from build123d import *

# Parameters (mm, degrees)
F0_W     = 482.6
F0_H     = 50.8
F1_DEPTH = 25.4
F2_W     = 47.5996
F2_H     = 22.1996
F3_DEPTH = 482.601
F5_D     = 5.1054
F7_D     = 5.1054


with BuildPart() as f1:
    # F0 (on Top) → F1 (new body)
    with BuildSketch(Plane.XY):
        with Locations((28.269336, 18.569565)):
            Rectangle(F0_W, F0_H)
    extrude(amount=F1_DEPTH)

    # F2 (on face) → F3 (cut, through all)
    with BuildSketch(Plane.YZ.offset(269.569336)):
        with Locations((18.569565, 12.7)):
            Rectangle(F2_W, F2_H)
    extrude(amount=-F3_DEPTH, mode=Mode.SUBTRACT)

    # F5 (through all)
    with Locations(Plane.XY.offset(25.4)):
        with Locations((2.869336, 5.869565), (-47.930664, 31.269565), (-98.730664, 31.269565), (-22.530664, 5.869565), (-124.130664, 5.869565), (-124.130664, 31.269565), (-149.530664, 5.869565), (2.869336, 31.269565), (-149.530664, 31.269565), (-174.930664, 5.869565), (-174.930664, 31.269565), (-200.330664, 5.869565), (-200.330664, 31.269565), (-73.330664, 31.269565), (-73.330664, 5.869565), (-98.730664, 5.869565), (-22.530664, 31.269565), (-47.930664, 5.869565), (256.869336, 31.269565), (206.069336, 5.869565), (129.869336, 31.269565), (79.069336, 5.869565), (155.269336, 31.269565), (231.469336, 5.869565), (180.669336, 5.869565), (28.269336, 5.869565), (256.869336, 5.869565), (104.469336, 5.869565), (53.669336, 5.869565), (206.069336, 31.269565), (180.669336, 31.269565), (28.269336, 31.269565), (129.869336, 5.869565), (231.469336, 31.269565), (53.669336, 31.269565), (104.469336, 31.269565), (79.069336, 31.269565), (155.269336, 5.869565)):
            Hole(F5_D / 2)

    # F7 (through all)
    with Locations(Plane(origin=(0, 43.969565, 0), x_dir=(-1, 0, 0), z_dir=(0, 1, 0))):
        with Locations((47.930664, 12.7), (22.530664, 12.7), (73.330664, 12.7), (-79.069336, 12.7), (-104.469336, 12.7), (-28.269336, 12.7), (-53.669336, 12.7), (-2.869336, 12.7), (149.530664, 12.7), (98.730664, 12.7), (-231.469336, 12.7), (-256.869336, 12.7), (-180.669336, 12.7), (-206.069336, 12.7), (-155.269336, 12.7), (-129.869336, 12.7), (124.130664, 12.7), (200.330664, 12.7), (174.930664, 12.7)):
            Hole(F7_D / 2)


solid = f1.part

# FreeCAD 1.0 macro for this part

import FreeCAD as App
import Part
import Sketcher

V = App.Vector
Q = App.Units.Quantity


def add_polygon(sketch, points):
    """Adds a closed chain of lines whose ends are joined by coincident constraints."""
    first, n = sketch.GeometryCount, len(points)
    for a, b in zip(points, points[1:] + points[:1]):
        sketch.addGeometry(Part.LineSegment(App.Vector(*a, 0), App.Vector(*b, 0)), False)
    for i in range(n):
        sketch.addConstraint(Sketcher.Constraint("Coincident", first + i, 2, first + (i + 1) % n, 1))

doc = App.newDocument("Part")
body = doc.addObject("PartDesign::Body", "Body")

# Sketch on XY plane
sketch1 = doc.addObject("Sketcher::SketchObject", "Sketch")
body.addObject(sketch1)
sketch1.AttachmentSupport = (doc.XY_Plane, [""])
sketch1.MapMode = "FlatFace"
add_polygon(sketch1, [(-213.030664, 43.969565), (-213.030664, -6.830435), (269.569336, -6.830435), (269.569336, 43.969565)])  # lines 0-3
sketch1.addConstraint(Sketcher.Constraint("Vertical", 0))
sketch1.addConstraint(Sketcher.Constraint("Horizontal", 1))
sketch1.addConstraint(Sketcher.Constraint("Vertical", 2))
sketch1.addConstraint(Sketcher.Constraint("Horizontal", 3))
sketch1.addConstraint(Sketcher.Constraint("DistanceX", 1, 1, 1, 2, Q("19 in")))
sketch1.addConstraint(Sketcher.Constraint("DistanceY", 0, 2, 0, 1, Q("2 in")))
sketch1.addConstraint(Sketcher.Constraint("DistanceX", 0, 2, -1, 1, 213.030664))
sketch1.addConstraint(Sketcher.Constraint("DistanceY", 0, 2, -1, 1, 6.830435))
pad1 = doc.addObject("PartDesign::Pad", "Pad")
body.addObject(pad1)
pad1.Profile = sketch1
pad1.Length = Q("1 in")

# Sketch on YZ plane
sketch2 = doc.addObject("Sketcher::SketchObject", "Sketch001")
body.addObject(sketch2)
sketch2.AttachmentSupport = (doc.YZ_Plane, [""])
sketch2.MapMode = "FlatFace"
sketch2.AttachmentOffset = App.Placement(V(0, 0, 269.569336), App.Rotation())
add_polygon(sketch2, [(-5.230235, 23.7998), (-5.230235, 1.6002), (42.369365, 1.6002), (42.369365, 23.7998)])  # lines 0-3
sketch2.addConstraint(Sketcher.Constraint("Vertical", 0))
sketch2.addConstraint(Sketcher.Constraint("Horizontal", 1))
sketch2.addConstraint(Sketcher.Constraint("Vertical", 2))
sketch2.addConstraint(Sketcher.Constraint("Horizontal", 3))
sketch2.addConstraint(Sketcher.Constraint("DistanceX", 1, 1, 1, 2, Q("1.874 in")))
sketch2.addConstraint(Sketcher.Constraint("DistanceY", 0, 2, 0, 1, Q("0.874 in")))
sketch2.addConstraint(Sketcher.Constraint("DistanceY", -1, 1, 0, 2, Q("0.063 in")))
sketch2.addConstraint(Sketcher.Constraint("DistanceX", 0, 2, -1, 1, 5.230235))
pocket1 = doc.addObject("PartDesign::Pocket", "Pocket")
body.addObject(pocket1)
pocket1.Profile = sketch2
pocket1.Type = "ThroughAll"

# Sketch on XY plane
sketch3 = doc.addObject("Sketcher::SketchObject", "Sketch002")
body.addObject(sketch3)
sketch3.AttachmentSupport = (doc.XY_Plane, [""])
sketch3.MapMode = "FlatFace"
sketch3.AttachmentOffset = App.Placement(V(0, 0, 1 * 25.4), App.Rotation())
sketch3.addGeometry(Part.Circle(V(2.869336, 5.869565, 0), V(0, 0, 1), 2.5527), False)
sketch3.addGeometry(Part.Circle(V(-47.930664, 31.269565, 0), V(0, 0, 1), 2.5527), False)
sketch3.addGeometry(Part.Circle(V(-98.730664, 31.269565, 0), V(0, 0, 1), 2.5527), False)
sketch3.addGeometry(Part.Circle(V(-22.530664, 5.869565, 0), V(0, 0, 1), 2.5527), False)
sketch3.addGeometry(Part.Circle(V(-124.130664, 5.869565, 0), V(0, 0, 1), 2.5527), False)
sketch3.addGeometry(Part.Circle(V(-124.130664, 31.269565, 0), V(0, 0, 1), 2.5527), False)
sketch3.addGeometry(Part.Circle(V(-149.530664, 5.869565, 0), V(0, 0, 1), 2.5527), False)
sketch3.addGeometry(Part.Circle(V(2.869336, 31.269565, 0), V(0, 0, 1), 2.5527), False)
sketch3.addGeometry(Part.Circle(V(-149.530664, 31.269565, 0), V(0, 0, 1), 2.5527), False)
sketch3.addGeometry(Part.Circle(V(-174.930664, 5.869565, 0), V(0, 0, 1), 2.5527), False)
sketch3.addGeometry(Part.Circle(V(-174.930664, 31.269565, 0), V(0, 0, 1), 2.5527), False)
sketch3.addGeometry(Part.Circle(V(-200.330664, 5.869565, 0), V(0, 0, 1), 2.5527), False)
sketch3.addGeometry(Part.Circle(V(-200.330664, 31.269565, 0), V(0, 0, 1), 2.5527), False)
sketch3.addGeometry(Part.Circle(V(-73.330664, 31.269565, 0), V(0, 0, 1), 2.5527), False)
sketch3.addGeometry(Part.Circle(V(-73.330664, 5.869565, 0), V(0, 0, 1), 2.5527), False)
sketch3.addGeometry(Part.Circle(V(-98.730664, 5.869565, 0), V(0, 0, 1), 2.5527), False)
sketch3.addGeometry(Part.Circle(V(-22.530664, 31.269565, 0), V(0, 0, 1), 2.5527), False)
sketch3.addGeometry(Part.Circle(V(-47.930664, 5.869565, 0), V(0, 0, 1), 2.5527), False)
sketch3.addGeometry(Part.Circle(V(256.869336, 31.269565, 0), V(0, 0, 1), 2.5527), False)
sketch3.addGeometry(Part.Circle(V(206.069336, 5.869565, 0), V(0, 0, 1), 2.5527), False)
sketch3.addGeometry(Part.Circle(V(129.869336, 31.269565, 0), V(0, 0, 1), 2.5527), False)
sketch3.addGeometry(Part.Circle(V(79.069336, 5.869565, 0), V(0, 0, 1), 2.5527), False)
sketch3.addGeometry(Part.Circle(V(155.269336, 31.269565, 0), V(0, 0, 1), 2.5527), False)
sketch3.addGeometry(Part.Circle(V(231.469336, 5.869565, 0), V(0, 0, 1), 2.5527), False)
sketch3.addGeometry(Part.Circle(V(180.669336, 5.869565, 0), V(0, 0, 1), 2.5527), False)
sketch3.addGeometry(Part.Circle(V(28.269336, 5.869565, 0), V(0, 0, 1), 2.5527), False)
sketch3.addGeometry(Part.Circle(V(256.869336, 5.869565, 0), V(0, 0, 1), 2.5527), False)
sketch3.addGeometry(Part.Circle(V(104.469336, 5.869565, 0), V(0, 0, 1), 2.5527), False)
sketch3.addGeometry(Part.Circle(V(53.669336, 5.869565, 0), V(0, 0, 1), 2.5527), False)
sketch3.addGeometry(Part.Circle(V(206.069336, 31.269565, 0), V(0, 0, 1), 2.5527), False)
sketch3.addGeometry(Part.Circle(V(180.669336, 31.269565, 0), V(0, 0, 1), 2.5527), False)
sketch3.addGeometry(Part.Circle(V(28.269336, 31.269565, 0), V(0, 0, 1), 2.5527), False)
sketch3.addGeometry(Part.Circle(V(129.869336, 5.869565, 0), V(0, 0, 1), 2.5527), False)
sketch3.addGeometry(Part.Circle(V(231.469336, 31.269565, 0), V(0, 0, 1), 2.5527), False)
sketch3.addGeometry(Part.Circle(V(53.669336, 31.269565, 0), V(0, 0, 1), 2.5527), False)
sketch3.addGeometry(Part.Circle(V(104.469336, 31.269565, 0), V(0, 0, 1), 2.5527), False)
sketch3.addGeometry(Part.Circle(V(79.069336, 31.269565, 0), V(0, 0, 1), 2.5527), False)
sketch3.addGeometry(Part.Circle(V(155.269336, 5.869565, 0), V(0, 0, 1), 2.5527), False)
sketch3.addConstraint(Sketcher.Constraint("Equal", 0, 1))
sketch3.addConstraint(Sketcher.Constraint("Equal", 1, 2))
sketch3.addConstraint(Sketcher.Constraint("Equal", 2, 3))
sketch3.addConstraint(Sketcher.Constraint("Equal", 3, 4))
sketch3.addConstraint(Sketcher.Constraint("Equal", 4, 5))
sketch3.addConstraint(Sketcher.Constraint("Equal", 5, 6))
sketch3.addConstraint(Sketcher.Constraint("Equal", 6, 7))
sketch3.addConstraint(Sketcher.Constraint("Equal", 7, 8))
sketch3.addConstraint(Sketcher.Constraint("Equal", 8, 9))
sketch3.addConstraint(Sketcher.Constraint("Equal", 9, 10))
sketch3.addConstraint(Sketcher.Constraint("Equal", 10, 11))
sketch3.addConstraint(Sketcher.Constraint("Equal", 11, 12))
sketch3.addConstraint(Sketcher.Constraint("Equal", 12, 13))
sketch3.addConstraint(Sketcher.Constraint("Equal", 13, 14))
sketch3.addConstraint(Sketcher.Constraint("Equal", 14, 15))
sketch3.addConstraint(Sketcher.Constraint("Equal", 15, 16))
sketch3.addConstraint(Sketcher.Constraint("Equal", 16, 17))
sketch3.addConstraint(Sketcher.Constraint("Equal", 17, 18))
sketch3.addConstraint(Sketcher.Constraint("Equal", 18, 19))
sketch3.addConstraint(Sketcher.Constraint("Equal", 19, 20))
sketch3.addConstraint(Sketcher.Constraint("Equal", 20, 21))
sketch3.addConstraint(Sketcher.Constraint("Equal", 21, 22))
sketch3.addConstraint(Sketcher.Constraint("Equal", 22, 23))
sketch3.addConstraint(Sketcher.Constraint("Equal", 23, 24))
sketch3.addConstraint(Sketcher.Constraint("Equal", 24, 25))
sketch3.addConstraint(Sketcher.Constraint("Equal", 25, 26))
sketch3.addConstraint(Sketcher.Constraint("Equal", 26, 27))
sketch3.addConstraint(Sketcher.Constraint("Equal", 27, 28))
sketch3.addConstraint(Sketcher.Constraint("Equal", 28, 29))
sketch3.addConstraint(Sketcher.Constraint("Equal", 29, 30))
sketch3.addConstraint(Sketcher.Constraint("Equal", 30, 31))
sketch3.addConstraint(Sketcher.Constraint("Equal", 31, 32))
sketch3.addConstraint(Sketcher.Constraint("Equal", 32, 33))
sketch3.addConstraint(Sketcher.Constraint("Equal", 33, 34))
sketch3.addConstraint(Sketcher.Constraint("Equal", 34, 35))
sketch3.addConstraint(Sketcher.Constraint("Equal", 35, 36))
sketch3.addConstraint(Sketcher.Constraint("Equal", 36, 37))
sketch3.addConstraint(Sketcher.Constraint("Horizontal", 1, 3, 2, 3))
sketch3.addConstraint(Sketcher.Constraint("Horizontal", 0, 3, 3, 3))
sketch3.addConstraint(Sketcher.Constraint("Horizontal", 3, 3, 4, 3))
sketch3.addConstraint(Sketcher.Constraint("Horizontal", 2, 3, 5, 3))
sketch3.addConstraint(Sketcher.Constraint("Horizontal", 4, 3, 6, 3))
sketch3.addConstraint(Sketcher.Constraint("Horizontal", 5, 3, 7, 3))
sketch3.addConstraint(Sketcher.Constraint("Horizontal", 7, 3, 8, 3))
sketch3.addConstraint(Sketcher.Constraint("Horizontal", 6, 3, 9, 3))
sketch3.addConstraint(Sketcher.Constraint("Horizontal", 8, 3, 10, 3))
sketch3.addConstraint(Sketcher.Constraint("Horizontal", 9, 3, 11, 3))
sketch3.addConstraint(Sketcher.Constraint("Horizontal", 10, 3, 12, 3))
sketch3.addConstraint(Sketcher.Constraint("Horizontal", 12, 3, 13, 3))
sketch3.addConstraint(Sketcher.Constraint("Horizontal", 11, 3, 14, 3))
sketch3.addConstraint(Sketcher.Constraint("Horizontal", 14, 3, 15, 3))
sketch3.addConstraint(Sketcher.Constraint("Horizontal", 13, 3, 16, 3))
sketch3.addConstraint(Sketcher.Constraint("Horizontal", 15, 3, 17, 3))
sketch3.addConstraint(Sketcher.Constraint("Horizontal", 16, 3, 18, 3))
sketch3.addConstraint(Sketcher.Constraint("Horizontal", 17, 3, 19, 3))
sketch3.addConstraint(Sketcher.Constraint("Horizontal", 18, 3, 20, 3))
sketch3.addConstraint(Sketcher.Constraint("Horizontal", 19, 3, 21, 3))
sketch3.addConstraint(Sketcher.Constraint("Horizontal", 20, 3, 22, 3))
sketch3.addConstraint(Sketcher.Constraint("Horizontal", 21, 3, 23, 3))
sketch3.addConstraint(Sketcher.Constraint("Horizontal", 23, 3, 24, 3))
sketch3.addConstraint(Sketcher.Constraint("Horizontal", 24, 3, 25, 3))
sketch3.addConstraint(Sketcher.Constraint("Horizontal", 25, 3, 26, 3))
sketch3.addConstraint(Sketcher.Constraint("Horizontal", 26, 3, 27, 3))
sketch3.addConstraint(Sketcher.Constraint("Horizontal", 27, 3, 28, 3))
sketch3.addConstraint(Sketcher.Constraint("Horizontal", 22, 3, 29, 3))
sketch3.addConstraint(Sketcher.Constraint("Horizontal", 29, 3, 30, 3))
sketch3.addConstraint(Sketcher.Constraint("Horizontal", 30, 3, 31, 3))
sketch3.addConstraint(Sketcher.Constraint("Horizontal", 28, 3, 32, 3))
sketch3.addConstraint(Sketcher.Constraint("Horizontal", 31, 3, 33, 3))
sketch3.addConstraint(Sketcher.Constraint("Horizontal", 33, 3, 34, 3))
sketch3.addConstraint(Sketcher.Constraint("Horizontal", 34, 3, 35, 3))
sketch3.addConstraint(Sketcher.Constraint("Horizontal", 35, 3, 36, 3))
sketch3.addConstraint(Sketcher.Constraint("Horizontal", 32, 3, 37, 3))
sketch3.addConstraint(Sketcher.Constraint("Vertical", 4, 3, 5, 3))
sketch3.addConstraint(Sketcher.Constraint("Vertical", 0, 3, 7, 3))
sketch3.addConstraint(Sketcher.Constraint("Vertical", 6, 3, 8, 3))
sketch3.addConstraint(Sketcher.Constraint("Vertical", 9, 3, 10, 3))
sketch3.addConstraint(Sketcher.Constraint("Vertical", 11, 3, 12, 3))
sketch3.addConstraint(Sketcher.Constraint("Vertical", 13, 3, 14, 3))
sketch3.addConstraint(Sketcher.Constraint("Vertical", 2, 3, 15, 3))
sketch3.addConstraint(Sketcher.Constraint("Vertical", 3, 3, 16, 3))
sketch3.addConstraint(Sketcher.Constraint("Vertical", 1, 3, 17, 3))
sketch3.addConstraint(Sketcher.Constraint("Vertical", 18, 3, 26, 3))
sketch3.addConstraint(Sketcher.Constraint("Vertical", 19, 3, 29, 3))
sketch3.addConstraint(Sketcher.Constraint("Vertical", 24, 3, 30, 3))
sketch3.addConstraint(Sketcher.Constraint("Vertical", 25, 3, 31, 3))
sketch3.addConstraint(Sketcher.Constraint("Vertical", 20, 3, 32, 3))
sketch3.addConstraint(Sketcher.Constraint("Vertical", 23, 3, 33, 3))
sketch3.addConstraint(Sketcher.Constraint("Vertical", 28, 3, 34, 3))
sketch3.addConstraint(Sketcher.Constraint("Vertical", 27, 3, 35, 3))
sketch3.addConstraint(Sketcher.Constraint("Vertical", 21, 3, 36, 3))
sketch3.addConstraint(Sketcher.Constraint("Vertical", 22, 3, 37, 3))
sketch3.addConstraint(Sketcher.Constraint("Diameter", 0, Q("0.201 in")))
sketch3.addConstraint(Sketcher.Constraint("DistanceX", 1, 3, 0, 3, Q("2 in")))
sketch3.addConstraint(Sketcher.Constraint("DistanceY", 0, 3, 1, 3, Q("1 in")))
sketch3.addConstraint(Sketcher.Constraint("DistanceX", 2, 3, 1, 3, Q("2 in")))
sketch3.addConstraint(Sketcher.Constraint("DistanceX", 3, 3, 0, 3, Q("1 in")))
sketch3.addConstraint(Sketcher.Constraint("DistanceX", 4, 3, 2, 3, Q("1 in")))
sketch3.addConstraint(Sketcher.Constraint("DistanceX", 6, 3, 4, 3, Q("1 in")))
sketch3.addConstraint(Sketcher.Constraint("DistanceX", 9, 3, 6, 3, Q("1 in")))
sketch3.addConstraint(Sketcher.Constraint("DistanceX", 11, 3, 9, 3, Q("1 in")))
sketch3.addConstraint(Sketcher.Constraint("DistanceX", 13, 3, 1, 3, Q("1 in")))
sketch3.addConstraint(Sketcher.Constraint("DistanceX", 7, 3, 18, 3, Q("10 in")))
sketch3.addConstraint(Sketcher.Constraint("DistanceX", 19, 3, 18, 3, Q("2 in")))
sketch3.addConstraint(Sketcher.Constraint("DistanceX", 20, 3, 19, 3, Q("3 in")))
sketch3.addConstraint(Sketcher.Constraint("DistanceX", 21, 3, 20, 3, Q("2 in")))
sketch3.addConstraint(Sketcher.Constraint("DistanceX", 20, 3, 22, 3, Q("1 in")))
sketch3.addConstraint(Sketcher.Constraint("DistanceX", 19, 3, 23, 3, Q("1 in")))
sketch3.addConstraint(Sketcher.Constraint("DistanceX", 24, 3, 19, 3, Q("1 in")))
sketch3.addConstraint(Sketcher.Constraint("DistanceX", 0, 3, 25, 3, Q("1 in")))
sketch3.addConstraint(Sketcher.Constraint("DistanceX", 21, 3, 27, 3, Q("1 in")))
sketch3.addConstraint(Sketcher.Constraint("DistanceX", 25, 3, 28, 3, Q("1 in")))
sketch3.addConstraint(Sketcher.Constraint("DistanceX", -1, 1, 0, 3, 2.869336))
sketch3.addConstraint(Sketcher.Constraint("DistanceY", -1, 1, 0, 3, 5.869565))
doc.recompute()
hole = doc.addObject("PartDesign::Hole", "Hole")
body.addObject(hole)
hole.Profile = sketch3
hole.ThreadType = "None"
hole.Diameter = Q("0.201 in")
hole.DepthType = "ThroughAll"

# Sketch on XZ plane
sketch4 = doc.addObject("Sketcher::SketchObject", "Sketch003")
body.addObject(sketch4)
sketch4.AttachmentSupport = (doc.XZ_Plane, [""])
sketch4.MapMode = "FlatFace"
sketch4.AttachmentOffset = App.Placement(V(0, 0, -43.969565), App.Rotation())
sketch4.addGeometry(Part.Circle(V(-47.930664, 12.7, 0), V(0, 0, 1), 2.5527), False)
sketch4.addGeometry(Part.Circle(V(-22.530664, 12.7, 0), V(0, 0, 1), 2.5527), False)
sketch4.addGeometry(Part.Circle(V(-73.330664, 12.7, 0), V(0, 0, 1), 2.5527), False)
sketch4.addGeometry(Part.Circle(V(79.069336, 12.7, 0), V(0, 0, 1), 2.5527), False)
sketch4.addGeometry(Part.Circle(V(104.469336, 12.7, 0), V(0, 0, 1), 2.5527), False)
sketch4.addGeometry(Part.Circle(V(28.269336, 12.7, 0), V(0, 0, 1), 2.5527), False)
sketch4.addGeometry(Part.Circle(V(53.669336, 12.7, 0), V(0, 0, 1), 2.5527), False)
sketch4.addGeometry(Part.Circle(V(2.869336, 12.7, 0), V(0, 0, 1), 2.5527), False)
sketch4.addGeometry(Part.Circle(V(-149.530664, 12.7, 0), V(0, 0, 1), 2.5527), False)
sketch4.addGeometry(Part.Circle(V(-98.730664, 12.7, 0), V(0, 0, 1), 2.5527), False)
sketch4.addGeometry(Part.Circle(V(231.469336, 12.7, 0), V(0, 0, 1), 2.5527), False)
sketch4.addGeometry(Part.Circle(V(256.869336, 12.7, 0), V(0, 0, 1), 2.5527), False)
sketch4.addGeometry(Part.Circle(V(180.669336, 12.7, 0), V(0, 0, 1), 2.5527), False)
sketch4.addGeometry(Part.Circle(V(206.069336, 12.7, 0), V(0, 0, 1), 2.5527), False)
sketch4.addGeometry(Part.Circle(V(155.269336, 12.7, 0), V(0, 0, 1), 2.5527), False)
sketch4.addGeometry(Part.Circle(V(129.869336, 12.7, 0), V(0, 0, 1), 2.5527), False)
sketch4.addGeometry(Part.Circle(V(-124.130664, 12.7, 0), V(0, 0, 1), 2.5527), False)
sketch4.addGeometry(Part.Circle(V(-200.330664, 12.7, 0), V(0, 0, 1), 2.5527), False)
sketch4.addGeometry(Part.Circle(V(-174.930664, 12.7, 0), V(0, 0, 1), 2.5527), False)
sketch4.addConstraint(Sketcher.Constraint("Equal", 0, 1))
sketch4.addConstraint(Sketcher.Constraint("Equal", 1, 2))
sketch4.addConstraint(Sketcher.Constraint("Equal", 2, 3))
sketch4.addConstraint(Sketcher.Constraint("Equal", 3, 4))
sketch4.addConstraint(Sketcher.Constraint("Equal", 4, 5))
sketch4.addConstraint(Sketcher.Constraint("Equal", 5, 6))
sketch4.addConstraint(Sketcher.Constraint("Equal", 6, 7))
sketch4.addConstraint(Sketcher.Constraint("Equal", 7, 8))
sketch4.addConstraint(Sketcher.Constraint("Equal", 8, 9))
sketch4.addConstraint(Sketcher.Constraint("Equal", 9, 10))
sketch4.addConstraint(Sketcher.Constraint("Equal", 10, 11))
sketch4.addConstraint(Sketcher.Constraint("Equal", 11, 12))
sketch4.addConstraint(Sketcher.Constraint("Equal", 12, 13))
sketch4.addConstraint(Sketcher.Constraint("Equal", 13, 14))
sketch4.addConstraint(Sketcher.Constraint("Equal", 14, 15))
sketch4.addConstraint(Sketcher.Constraint("Equal", 15, 16))
sketch4.addConstraint(Sketcher.Constraint("Equal", 16, 17))
sketch4.addConstraint(Sketcher.Constraint("Equal", 17, 18))
sketch4.addConstraint(Sketcher.Constraint("Horizontal", 0, 3, 1, 3))
sketch4.addConstraint(Sketcher.Constraint("Horizontal", 1, 3, 2, 3))
sketch4.addConstraint(Sketcher.Constraint("Horizontal", 2, 3, 3, 3))
sketch4.addConstraint(Sketcher.Constraint("Horizontal", 3, 3, 4, 3))
sketch4.addConstraint(Sketcher.Constraint("Horizontal", 4, 3, 5, 3))
sketch4.addConstraint(Sketcher.Constraint("Horizontal", 5, 3, 6, 3))
sketch4.addConstraint(Sketcher.Constraint("Horizontal", 6, 3, 7, 3))
sketch4.addConstraint(Sketcher.Constraint("Horizontal", 7, 3, 8, 3))
sketch4.addConstraint(Sketcher.Constraint("Horizontal", 8, 3, 9, 3))
sketch4.addConstraint(Sketcher.Constraint("Horizontal", 9, 3, 10, 3))
sketch4.addConstraint(Sketcher.Constraint("Horizontal", 10, 3, 11, 3))
sketch4.addConstraint(Sketcher.Constraint("Horizontal", 11, 3, 12, 3))
sketch4.addConstraint(Sketcher.Constraint("Horizontal", 12, 3, 13, 3))
sketch4.addConstraint(Sketcher.Constraint("Horizontal", 13, 3, 14, 3))
sketch4.addConstraint(Sketcher.Constraint("Horizontal", 14, 3, 15, 3))
sketch4.addConstraint(Sketcher.Constraint("Horizontal", 15, 3, 16, 3))
sketch4.addConstraint(Sketcher.Constraint("Horizontal", 16, 3, 17, 3))
sketch4.addConstraint(Sketcher.Constraint("Horizontal", 17, 3, 18, 3))
sketch4.addConstraint(Sketcher.Constraint("Diameter", 0, Q("0.201 in")))
sketch4.addConstraint(Sketcher.Constraint("DistanceX", 0, 3, 1, 3, Q("1 in")))
sketch4.addConstraint(Sketcher.Constraint("DistanceX", 2, 3, 0, 3, Q("1 in")))
sketch4.addConstraint(Sketcher.Constraint("DistanceX", 1, 3, 3, 3, Q("4 in")))
sketch4.addConstraint(Sketcher.Constraint("DistanceX", 3, 3, 4, 3, Q("1 in")))
sketch4.addConstraint(Sketcher.Constraint("DistanceX", 1, 3, 5, 3, Q("2 in")))
sketch4.addConstraint(Sketcher.Constraint("DistanceX", 5, 3, 6, 3, Q("1 in")))
sketch4.addConstraint(Sketcher.Constraint("DistanceX", 7, 3, 5, 3, Q("1 in")))
sketch4.addConstraint(Sketcher.Constraint("DistanceX", 8, 3, 2, 3, Q("3 in")))
sketch4.addConstraint(Sketcher.Constraint("DistanceX", 9, 3, 2, 3, Q("1 in")))
sketch4.addConstraint(Sketcher.Constraint("DistanceX", 4, 3, 10, 3, Q("5 in")))
sketch4.addConstraint(Sketcher.Constraint("DistanceX", 10, 3, 11, 3, Q("1 in")))
sketch4.addConstraint(Sketcher.Constraint("DistanceX", 12, 3, 10, 3, Q("2 in")))
sketch4.addConstraint(Sketcher.Constraint("DistanceX", 13, 3, 10, 3, Q("1 in")))
sketch4.addConstraint(Sketcher.Constraint("DistanceX", 14, 3, 12, 3, Q("1 in")))
sketch4.addConstraint(Sketcher.Constraint("DistanceX", 4, 3, 15, 3, Q("1 in")))
sketch4.addConstraint(Sketcher.Constraint("DistanceX", 16, 3, 9, 3, Q("1 in")))
sketch4.addConstraint(Sketcher.Constraint("DistanceX", 17, 3, 8, 3, Q("2 in")))
sketch4.addConstraint(Sketcher.Constraint("DistanceX", 18, 3, 8, 3, Q("1 in")))
sketch4.addConstraint(Sketcher.Constraint("DistanceY", -1, 1, 0, 3, Q("0.5 in")))
sketch4.addConstraint(Sketcher.Constraint("DistanceX", 0, 3, -1, 1, 47.930664))
doc.recompute()
hole2 = doc.addObject("PartDesign::Hole", "Hole001")
body.addObject(hole2)
hole2.Profile = sketch4
hole2.ThreadType = "None"
hole2.Diameter = Q("0.201 in")
hole2.DepthType = "ThroughAll"
hole2.Reversed = True

doc.recompute()
